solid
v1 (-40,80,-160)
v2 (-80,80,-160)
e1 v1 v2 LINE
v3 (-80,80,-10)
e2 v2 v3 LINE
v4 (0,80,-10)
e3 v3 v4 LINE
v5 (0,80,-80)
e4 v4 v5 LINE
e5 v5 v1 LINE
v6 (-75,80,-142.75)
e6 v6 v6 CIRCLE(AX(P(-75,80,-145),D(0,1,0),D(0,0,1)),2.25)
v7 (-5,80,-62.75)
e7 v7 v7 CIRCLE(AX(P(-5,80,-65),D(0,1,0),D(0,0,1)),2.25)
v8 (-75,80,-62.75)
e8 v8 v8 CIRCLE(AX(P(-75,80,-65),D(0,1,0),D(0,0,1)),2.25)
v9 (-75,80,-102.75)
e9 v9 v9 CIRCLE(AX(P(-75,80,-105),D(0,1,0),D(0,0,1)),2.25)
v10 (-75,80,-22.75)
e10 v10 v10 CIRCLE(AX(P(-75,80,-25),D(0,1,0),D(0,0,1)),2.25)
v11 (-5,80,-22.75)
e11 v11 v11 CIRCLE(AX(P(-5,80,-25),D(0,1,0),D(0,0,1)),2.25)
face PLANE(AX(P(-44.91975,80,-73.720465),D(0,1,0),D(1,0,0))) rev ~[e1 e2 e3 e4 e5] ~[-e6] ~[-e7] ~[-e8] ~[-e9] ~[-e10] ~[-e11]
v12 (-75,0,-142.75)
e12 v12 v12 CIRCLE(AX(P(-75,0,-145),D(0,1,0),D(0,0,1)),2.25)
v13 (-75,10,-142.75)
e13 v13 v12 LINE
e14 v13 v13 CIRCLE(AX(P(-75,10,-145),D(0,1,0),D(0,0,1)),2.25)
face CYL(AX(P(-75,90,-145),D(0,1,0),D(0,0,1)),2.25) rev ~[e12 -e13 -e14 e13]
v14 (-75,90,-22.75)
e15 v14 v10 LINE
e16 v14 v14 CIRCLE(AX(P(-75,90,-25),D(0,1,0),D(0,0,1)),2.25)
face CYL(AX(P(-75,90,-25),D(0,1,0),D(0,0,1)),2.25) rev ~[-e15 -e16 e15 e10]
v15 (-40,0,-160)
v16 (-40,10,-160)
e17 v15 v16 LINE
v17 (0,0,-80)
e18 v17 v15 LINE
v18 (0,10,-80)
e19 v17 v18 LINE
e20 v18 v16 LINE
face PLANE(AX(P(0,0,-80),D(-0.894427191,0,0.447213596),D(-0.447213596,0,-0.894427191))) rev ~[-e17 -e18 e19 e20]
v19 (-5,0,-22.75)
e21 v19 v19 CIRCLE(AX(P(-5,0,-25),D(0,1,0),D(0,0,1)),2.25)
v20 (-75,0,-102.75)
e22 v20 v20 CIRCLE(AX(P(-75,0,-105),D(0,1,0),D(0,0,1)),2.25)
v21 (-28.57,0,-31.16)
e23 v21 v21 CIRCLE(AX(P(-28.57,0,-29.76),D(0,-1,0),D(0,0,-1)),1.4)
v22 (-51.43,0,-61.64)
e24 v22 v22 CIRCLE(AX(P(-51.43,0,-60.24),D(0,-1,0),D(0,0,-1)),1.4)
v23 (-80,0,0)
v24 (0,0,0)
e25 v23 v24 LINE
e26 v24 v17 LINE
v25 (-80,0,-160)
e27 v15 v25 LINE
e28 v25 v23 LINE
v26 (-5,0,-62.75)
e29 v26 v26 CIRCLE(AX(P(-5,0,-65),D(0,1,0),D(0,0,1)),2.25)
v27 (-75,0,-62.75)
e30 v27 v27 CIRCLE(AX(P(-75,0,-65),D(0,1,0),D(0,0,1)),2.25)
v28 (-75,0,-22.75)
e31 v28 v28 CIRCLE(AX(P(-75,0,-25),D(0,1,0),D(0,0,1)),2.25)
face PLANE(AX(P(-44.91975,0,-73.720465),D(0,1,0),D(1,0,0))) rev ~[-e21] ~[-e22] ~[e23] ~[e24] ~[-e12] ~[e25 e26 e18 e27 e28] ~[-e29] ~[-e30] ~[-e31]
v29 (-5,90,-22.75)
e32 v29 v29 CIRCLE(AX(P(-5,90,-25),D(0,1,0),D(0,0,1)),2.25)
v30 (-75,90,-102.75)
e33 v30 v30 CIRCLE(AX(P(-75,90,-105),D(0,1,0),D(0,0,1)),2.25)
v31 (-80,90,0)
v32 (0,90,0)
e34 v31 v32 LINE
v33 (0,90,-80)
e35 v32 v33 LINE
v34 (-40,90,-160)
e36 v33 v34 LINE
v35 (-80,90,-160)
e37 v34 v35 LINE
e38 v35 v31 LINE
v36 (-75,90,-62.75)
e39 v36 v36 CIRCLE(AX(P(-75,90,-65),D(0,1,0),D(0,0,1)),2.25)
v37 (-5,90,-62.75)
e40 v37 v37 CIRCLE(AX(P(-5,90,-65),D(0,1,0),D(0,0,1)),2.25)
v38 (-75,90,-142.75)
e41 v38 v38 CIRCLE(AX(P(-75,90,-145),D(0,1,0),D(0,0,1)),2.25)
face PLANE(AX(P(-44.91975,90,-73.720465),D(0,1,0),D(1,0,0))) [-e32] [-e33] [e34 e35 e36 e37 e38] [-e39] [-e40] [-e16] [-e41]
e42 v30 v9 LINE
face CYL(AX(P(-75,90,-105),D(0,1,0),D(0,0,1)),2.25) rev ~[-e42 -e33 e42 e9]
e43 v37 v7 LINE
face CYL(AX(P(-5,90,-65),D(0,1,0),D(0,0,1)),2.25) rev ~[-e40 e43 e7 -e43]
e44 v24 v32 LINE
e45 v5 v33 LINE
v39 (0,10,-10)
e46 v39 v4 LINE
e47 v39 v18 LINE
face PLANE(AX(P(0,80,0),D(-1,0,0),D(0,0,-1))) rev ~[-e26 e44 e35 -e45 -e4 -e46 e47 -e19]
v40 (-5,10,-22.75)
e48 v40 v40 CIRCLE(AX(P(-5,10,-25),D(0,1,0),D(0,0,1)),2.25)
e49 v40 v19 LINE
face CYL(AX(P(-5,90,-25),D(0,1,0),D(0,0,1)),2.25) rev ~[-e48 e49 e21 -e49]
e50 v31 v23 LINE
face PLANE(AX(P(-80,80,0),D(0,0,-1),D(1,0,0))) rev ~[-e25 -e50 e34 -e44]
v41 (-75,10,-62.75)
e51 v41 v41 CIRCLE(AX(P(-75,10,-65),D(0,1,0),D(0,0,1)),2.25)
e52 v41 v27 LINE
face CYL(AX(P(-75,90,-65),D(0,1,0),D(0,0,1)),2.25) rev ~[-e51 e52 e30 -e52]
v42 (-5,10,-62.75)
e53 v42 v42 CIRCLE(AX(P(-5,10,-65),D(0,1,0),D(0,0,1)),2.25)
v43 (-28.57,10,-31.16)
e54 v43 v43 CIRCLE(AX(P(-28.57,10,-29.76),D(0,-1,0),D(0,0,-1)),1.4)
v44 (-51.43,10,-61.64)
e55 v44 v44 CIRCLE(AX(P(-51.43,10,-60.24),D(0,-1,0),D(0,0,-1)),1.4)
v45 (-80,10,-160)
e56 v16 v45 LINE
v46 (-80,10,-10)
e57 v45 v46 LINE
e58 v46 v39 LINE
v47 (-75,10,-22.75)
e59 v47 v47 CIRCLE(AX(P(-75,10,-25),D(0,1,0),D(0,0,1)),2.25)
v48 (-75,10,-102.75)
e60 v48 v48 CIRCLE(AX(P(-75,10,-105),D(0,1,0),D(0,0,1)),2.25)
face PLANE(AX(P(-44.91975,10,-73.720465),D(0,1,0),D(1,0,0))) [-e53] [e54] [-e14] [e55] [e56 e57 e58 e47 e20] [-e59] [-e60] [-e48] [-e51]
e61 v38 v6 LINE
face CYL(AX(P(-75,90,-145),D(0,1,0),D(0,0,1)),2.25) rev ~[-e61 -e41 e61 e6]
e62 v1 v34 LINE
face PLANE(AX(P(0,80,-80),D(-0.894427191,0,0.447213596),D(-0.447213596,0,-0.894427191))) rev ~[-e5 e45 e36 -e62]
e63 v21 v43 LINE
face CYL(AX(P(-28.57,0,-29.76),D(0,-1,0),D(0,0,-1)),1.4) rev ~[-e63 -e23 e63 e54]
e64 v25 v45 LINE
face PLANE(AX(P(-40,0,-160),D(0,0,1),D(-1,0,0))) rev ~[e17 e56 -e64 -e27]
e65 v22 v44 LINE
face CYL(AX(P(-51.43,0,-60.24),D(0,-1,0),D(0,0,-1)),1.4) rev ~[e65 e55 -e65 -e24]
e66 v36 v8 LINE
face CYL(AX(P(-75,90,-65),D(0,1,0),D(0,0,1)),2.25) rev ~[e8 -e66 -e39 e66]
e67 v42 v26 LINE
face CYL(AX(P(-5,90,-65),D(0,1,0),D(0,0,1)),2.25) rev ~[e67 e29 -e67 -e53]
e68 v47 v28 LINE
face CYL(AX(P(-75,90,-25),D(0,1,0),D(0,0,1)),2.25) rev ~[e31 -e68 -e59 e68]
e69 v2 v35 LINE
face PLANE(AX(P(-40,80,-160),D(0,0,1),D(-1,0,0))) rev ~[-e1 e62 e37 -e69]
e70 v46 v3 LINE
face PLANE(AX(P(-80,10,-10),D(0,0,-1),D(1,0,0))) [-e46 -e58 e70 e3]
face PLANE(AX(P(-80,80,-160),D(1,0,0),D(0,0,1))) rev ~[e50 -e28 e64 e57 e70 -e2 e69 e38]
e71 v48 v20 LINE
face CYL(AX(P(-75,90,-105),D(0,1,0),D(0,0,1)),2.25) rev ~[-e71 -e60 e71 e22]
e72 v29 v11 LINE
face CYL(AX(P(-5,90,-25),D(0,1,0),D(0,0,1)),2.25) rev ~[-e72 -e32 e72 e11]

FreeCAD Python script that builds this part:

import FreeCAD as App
import Part
import Sketcher


def add_polygon(sketch, points):
    """Adds a closed chain of lines whose ends are joined by coincident constraints."""
    first, n = sketch.GeometryCount, len(points)
    for a, b in zip(points, points[1:] + points[:1]):
        sketch.addGeometry(Part.LineSegment(App.Vector(*a, 0), App.Vector(*b, 0)), False)
    for i in range(n):
        sketch.addConstraint(Sketcher.Constraint("Coincident", first + i, 2, first + (i + 1) % n, 1))

doc = App.newDocument("Part")
body = doc.addObject("PartDesign::Body", "Body")

# Sketch on XZ plane
sketch1 = body.newObject("Sketcher::SketchObject", "Sketch")
sketch1.AttachmentSupport = (doc.getObject("XZ_Plane"), [""])
sketch1.MapMode = "FlatFace"
add_polygon(sketch1, [(0, 0), (0, -80), (-40, -160), (-80, -160), (-80, 0)])  # lines 0-4
sketch1.addConstraint([
    Sketcher.Constraint("Vertical", 0),
    Sketcher.Constraint("Horizontal", 2),
    Sketcher.Constraint("Vertical", 3),
    Sketcher.Constraint("Horizontal", 4),
    Sketcher.Constraint("Coincident", 4, 2, -1, 1),
    Sketcher.Constraint("Equal", 4, 0),
    Sketcher.Constraint("DistanceX", 2, 2, 2, 1, 40.0),
    Sketcher.Constraint("DistanceX", 4, 1, 4, 2, 80.0),
    Sketcher.Constraint("DistanceY", 3, 1, 3, 2, 160.0),
])
pad1 = body.newObject("PartDesign::Pad", "Pad")
pad1.Profile = sketch1
pad1.Length = 10
pad1.Reversed = True

# Sketch on XZ plane
sketch2 = body.newObject("Sketcher::SketchObject", "Sketch001")
sketch2.AttachmentSupport = (doc.getObject("XZ_Plane"), [""])
sketch2.MapMode = "FlatFace"
sketch2.AttachmentOffset = App.Placement(App.Vector(0, 0, -10), App.Rotation())
add_polygon(sketch2, [(-80, -10), (-80, 0), (0, 0), (0, -10)])  # lines 0-3
sketch2.addConstraint([
    Sketcher.Constraint("Vertical", 0),
    Sketcher.Constraint("Horizontal", 1),
    Sketcher.Constraint("Vertical", 2),
    Sketcher.Constraint("Horizontal", 3),
    Sketcher.Constraint("Coincident", 1, 2, -1, 1),
    Sketcher.Constraint("DistanceX", 1, 1, 1, 2, 80.0),
    Sketcher.Constraint("DistanceY", 0, 1, 0, 2, 10.0),
])
pad2 = body.newObject("PartDesign::Pad", "Pad001")
pad2.Profile = sketch2
pad2.Length = 70
pad2.Reversed = True

# Sketch on XZ plane
sketch3 = body.newObject("Sketcher::SketchObject", "Sketch002")
sketch3.AttachmentSupport = (doc.getObject("XZ_Plane"), [""])
sketch3.MapMode = "FlatFace"
sketch3.AttachmentOffset = App.Placement(App.Vector(0, 0, -80), App.Rotation())
add_polygon(sketch3, [(-80, 0), (0, 0), (0, -80), (-40, -160), (-80, -160)])  # lines 0-4
sketch3.addConstraint([
    Sketcher.Constraint("Horizontal", 0),
    Sketcher.Constraint("Vertical", 1),
    Sketcher.Constraint("Horizontal", 3),
    Sketcher.Constraint("Vertical", 4),
    Sketcher.Constraint("Coincident", 0, 2, -1, 1),
    Sketcher.Constraint("Equal", 0, 1),
    Sketcher.Constraint("DistanceX", 0, 1, 0, 2, 80.0),
    Sketcher.Constraint("DistanceX", 3, 2, 3, 1, 40.0),
    Sketcher.Constraint("DistanceY", 4, 1, 4, 2, 160.0),
])
pad3 = body.newObject("PartDesign::Pad", "Pad002")
pad3.Profile = sketch3
pad3.Length = 10
pad3.Reversed = True

# Sketch on XZ plane
sketch4 = body.newObject("Sketcher::SketchObject", "Sketch003")
sketch4.AttachmentSupport = (doc.getObject("XZ_Plane"), [""])
sketch4.MapMode = "FlatFace"
sketch4.AttachmentOffset = App.Placement(App.Vector(0, 0, -90), App.Rotation())
sketch4.addGeometry([
    Part.Circle(App.Vector(-75, -25, 0), App.Vector(0, 0, 1), 2.2),  # 0
    Part.Circle(App.Vector(-5, -25, 0), App.Vector(0, 0, 1), 2.2),  # 1
    Part.Circle(App.Vector(-5, -65, 0), App.Vector(0, 0, 1), 2.2),  # 2
    Part.Circle(App.Vector(-75, -65, 0), App.Vector(0, 0, 1), 2.2),  # 3
    Part.Circle(App.Vector(-75, -145, 0), App.Vector(0, 0, 1), 2.2),  # 4
    Part.Circle(App.Vector(-75, -105, 0), App.Vector(0, 0, 1), 2.2),  # 5
], False)
sketch4.addConstraint([
    Sketcher.Constraint("Equal", 0, 1),
    Sketcher.Constraint("Equal", 1, 2),
    Sketcher.Constraint("Equal", 2, 3),
    Sketcher.Constraint("Equal", 3, 4),
    Sketcher.Constraint("Equal", 4, 5),
    Sketcher.Constraint("Horizontal", 0, 3, 1, 3),
    Sketcher.Constraint("Horizontal", 2, 3, 3, 3),
    Sketcher.Constraint("Vertical", 1, 3, 2, 3),
    Sketcher.Constraint("Vertical", 0, 3, 3, 3),
    Sketcher.Constraint("Vertical", 3, 3, 4, 3),
    Sketcher.Constraint("Vertical", 4, 3, 5, 3),
    Sketcher.Constraint("Diameter", 0, 4.5),
    Sketcher.Constraint("DistanceX", 0, 3, -1, 1, 75.0),
    Sketcher.Constraint("DistanceY", 0, 3, -1, 1, 25.0),
    Sketcher.Constraint("DistanceX", 1, 3, -1, 1, 5.0),
    Sketcher.Constraint("DistanceY", 2, 3, -1, 1, 65.0),
    Sketcher.Constraint("DistanceY", 4, 3, -1, 1, 145.0),
    Sketcher.Constraint("DistanceY", 5, 3, -1, 1, 105.0),
])
pocket1 = body.newObject("PartDesign::Pocket", "Pocket")
pocket1.Profile = sketch4
pocket1.Type = "ThroughAll"
pocket1.Reversed = True

# Sketch on XZ plane
sketch5 = body.newObject("Sketcher::SketchObject", "Sketch004")
sketch5.AttachmentSupport = (doc.getObject("XZ_Plane"), [""])
sketch5.MapMode = "FlatFace"
sketch5.addGeometry(Part.Circle(App.Vector(-28.6, -29.8, 0), App.Vector(0, 0, 1), 1.4), False)
sketch5.addConstraint([
    Sketcher.Constraint("Diameter", 0, 2.8),
    Sketcher.Constraint("DistanceX", 0, 3, -1, 1, 28.57),
    Sketcher.Constraint("DistanceY", 0, 3, -1, 1, 29.76),
])
pocket2 = body.newObject("PartDesign::Pocket", "Pocket001")
pocket2.Profile = sketch5
pocket2.Type = "UpToFirst"

# Sketch on XZ plane
sketch6 = body.newObject("Sketcher::SketchObject", "Sketch005")
sketch6.AttachmentSupport = (doc.getObject("XZ_Plane"), [""])
sketch6.MapMode = "FlatFace"
sketch6.addGeometry(Part.Circle(App.Vector(-51.4, -60.2, 0), App.Vector(0, 0, 1), 1.4), False)
sketch6.addConstraint([
    Sketcher.Constraint("Diameter", 0, 2.8),
    Sketcher.Constraint("DistanceX", 0, 3, -1, 1, 51.43),
    Sketcher.Constraint("DistanceY", 0, 3, -1, 1, 60.24),
])
pocket3 = body.newObject("PartDesign::Pocket", "Pocket002")
pocket3.Profile = sketch6
pocket3.Type = "UpToFirst"

doc.recompute()
